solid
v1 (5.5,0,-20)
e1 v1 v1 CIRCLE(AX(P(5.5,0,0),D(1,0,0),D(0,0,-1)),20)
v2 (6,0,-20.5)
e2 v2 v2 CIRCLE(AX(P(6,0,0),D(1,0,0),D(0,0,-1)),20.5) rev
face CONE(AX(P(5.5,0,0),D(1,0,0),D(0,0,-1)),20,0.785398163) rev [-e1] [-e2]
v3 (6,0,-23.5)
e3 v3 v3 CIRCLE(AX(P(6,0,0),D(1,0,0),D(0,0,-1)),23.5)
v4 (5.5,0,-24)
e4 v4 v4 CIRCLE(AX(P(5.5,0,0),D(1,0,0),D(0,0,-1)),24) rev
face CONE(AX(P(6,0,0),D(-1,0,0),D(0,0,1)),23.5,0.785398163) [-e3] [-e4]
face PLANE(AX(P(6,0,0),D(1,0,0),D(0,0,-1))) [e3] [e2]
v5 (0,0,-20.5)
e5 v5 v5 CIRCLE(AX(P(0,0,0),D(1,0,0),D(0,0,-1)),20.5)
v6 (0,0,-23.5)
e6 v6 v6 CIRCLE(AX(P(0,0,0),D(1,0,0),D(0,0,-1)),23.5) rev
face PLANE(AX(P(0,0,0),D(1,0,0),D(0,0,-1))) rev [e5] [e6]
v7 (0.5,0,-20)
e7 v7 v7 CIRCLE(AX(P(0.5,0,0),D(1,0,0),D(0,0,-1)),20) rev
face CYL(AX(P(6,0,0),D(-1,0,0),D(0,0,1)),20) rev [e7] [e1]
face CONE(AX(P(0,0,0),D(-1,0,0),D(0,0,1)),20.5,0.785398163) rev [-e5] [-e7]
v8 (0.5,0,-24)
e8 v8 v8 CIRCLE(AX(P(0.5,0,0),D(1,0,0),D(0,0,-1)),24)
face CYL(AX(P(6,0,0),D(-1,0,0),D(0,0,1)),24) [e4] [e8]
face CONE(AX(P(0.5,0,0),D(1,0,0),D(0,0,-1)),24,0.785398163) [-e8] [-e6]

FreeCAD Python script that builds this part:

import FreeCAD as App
import Part
import Sketcher
from FreeCAD import Vector


def edges_at(feature, points):
    """Names of the edges that pass closest to the given points."""
    edges = feature.Shape.Edges
    near = lambda p: min(range(len(edges)), key=lambda i: edges[i].distToShape(Part.Vertex(*p))[0])
    return sorted({f"Edge{near(p) + 1}" for p in points})

doc = App.newDocument("Part")
body = doc.addObject("PartDesign::Body", "Body")

sketch1 = body.newObject("Sketcher::SketchObject", "Sketch")
sketch1.AttachmentSupport = (doc.getObject("YZ_Plane"), [""])
sketch1.MapMode = "FlatFace"
sketch1.addGeometry(Part.Circle(Vector(0, 0, 0), Vector(0, 0, 1), 24), False)
sketch1.addGeometry(Part.Circle(Vector(0, 0, 0), Vector(0, 0, 1), 20), False)
sketch1.addConstraint(Sketcher.Constraint("Coincident", 0, 3, -1, 1))
sketch1.addConstraint(Sketcher.Constraint("Coincident", 1, 3, -1, 1))
sketch1.addConstraint(Sketcher.Constraint("Diameter", 0, 48.0))
sketch1.addConstraint(Sketcher.Constraint("Diameter", 1, 40.0))
pad1 = body.newObject("PartDesign::Pad", "Pad")
pad1.Profile = sketch1
pad1.Length = 6
doc.recompute()

chamfer = body.newObject("PartDesign::Chamfer", "Chamfer")
chamfer.Base = (pad1, edges_at(pad1, [
    (0, 0, 24),
    (6, 0, 24),
    (0, 0, 20),
    (6, 0, 20),
]))
chamfer.Size = 0.5

doc.recompute()
